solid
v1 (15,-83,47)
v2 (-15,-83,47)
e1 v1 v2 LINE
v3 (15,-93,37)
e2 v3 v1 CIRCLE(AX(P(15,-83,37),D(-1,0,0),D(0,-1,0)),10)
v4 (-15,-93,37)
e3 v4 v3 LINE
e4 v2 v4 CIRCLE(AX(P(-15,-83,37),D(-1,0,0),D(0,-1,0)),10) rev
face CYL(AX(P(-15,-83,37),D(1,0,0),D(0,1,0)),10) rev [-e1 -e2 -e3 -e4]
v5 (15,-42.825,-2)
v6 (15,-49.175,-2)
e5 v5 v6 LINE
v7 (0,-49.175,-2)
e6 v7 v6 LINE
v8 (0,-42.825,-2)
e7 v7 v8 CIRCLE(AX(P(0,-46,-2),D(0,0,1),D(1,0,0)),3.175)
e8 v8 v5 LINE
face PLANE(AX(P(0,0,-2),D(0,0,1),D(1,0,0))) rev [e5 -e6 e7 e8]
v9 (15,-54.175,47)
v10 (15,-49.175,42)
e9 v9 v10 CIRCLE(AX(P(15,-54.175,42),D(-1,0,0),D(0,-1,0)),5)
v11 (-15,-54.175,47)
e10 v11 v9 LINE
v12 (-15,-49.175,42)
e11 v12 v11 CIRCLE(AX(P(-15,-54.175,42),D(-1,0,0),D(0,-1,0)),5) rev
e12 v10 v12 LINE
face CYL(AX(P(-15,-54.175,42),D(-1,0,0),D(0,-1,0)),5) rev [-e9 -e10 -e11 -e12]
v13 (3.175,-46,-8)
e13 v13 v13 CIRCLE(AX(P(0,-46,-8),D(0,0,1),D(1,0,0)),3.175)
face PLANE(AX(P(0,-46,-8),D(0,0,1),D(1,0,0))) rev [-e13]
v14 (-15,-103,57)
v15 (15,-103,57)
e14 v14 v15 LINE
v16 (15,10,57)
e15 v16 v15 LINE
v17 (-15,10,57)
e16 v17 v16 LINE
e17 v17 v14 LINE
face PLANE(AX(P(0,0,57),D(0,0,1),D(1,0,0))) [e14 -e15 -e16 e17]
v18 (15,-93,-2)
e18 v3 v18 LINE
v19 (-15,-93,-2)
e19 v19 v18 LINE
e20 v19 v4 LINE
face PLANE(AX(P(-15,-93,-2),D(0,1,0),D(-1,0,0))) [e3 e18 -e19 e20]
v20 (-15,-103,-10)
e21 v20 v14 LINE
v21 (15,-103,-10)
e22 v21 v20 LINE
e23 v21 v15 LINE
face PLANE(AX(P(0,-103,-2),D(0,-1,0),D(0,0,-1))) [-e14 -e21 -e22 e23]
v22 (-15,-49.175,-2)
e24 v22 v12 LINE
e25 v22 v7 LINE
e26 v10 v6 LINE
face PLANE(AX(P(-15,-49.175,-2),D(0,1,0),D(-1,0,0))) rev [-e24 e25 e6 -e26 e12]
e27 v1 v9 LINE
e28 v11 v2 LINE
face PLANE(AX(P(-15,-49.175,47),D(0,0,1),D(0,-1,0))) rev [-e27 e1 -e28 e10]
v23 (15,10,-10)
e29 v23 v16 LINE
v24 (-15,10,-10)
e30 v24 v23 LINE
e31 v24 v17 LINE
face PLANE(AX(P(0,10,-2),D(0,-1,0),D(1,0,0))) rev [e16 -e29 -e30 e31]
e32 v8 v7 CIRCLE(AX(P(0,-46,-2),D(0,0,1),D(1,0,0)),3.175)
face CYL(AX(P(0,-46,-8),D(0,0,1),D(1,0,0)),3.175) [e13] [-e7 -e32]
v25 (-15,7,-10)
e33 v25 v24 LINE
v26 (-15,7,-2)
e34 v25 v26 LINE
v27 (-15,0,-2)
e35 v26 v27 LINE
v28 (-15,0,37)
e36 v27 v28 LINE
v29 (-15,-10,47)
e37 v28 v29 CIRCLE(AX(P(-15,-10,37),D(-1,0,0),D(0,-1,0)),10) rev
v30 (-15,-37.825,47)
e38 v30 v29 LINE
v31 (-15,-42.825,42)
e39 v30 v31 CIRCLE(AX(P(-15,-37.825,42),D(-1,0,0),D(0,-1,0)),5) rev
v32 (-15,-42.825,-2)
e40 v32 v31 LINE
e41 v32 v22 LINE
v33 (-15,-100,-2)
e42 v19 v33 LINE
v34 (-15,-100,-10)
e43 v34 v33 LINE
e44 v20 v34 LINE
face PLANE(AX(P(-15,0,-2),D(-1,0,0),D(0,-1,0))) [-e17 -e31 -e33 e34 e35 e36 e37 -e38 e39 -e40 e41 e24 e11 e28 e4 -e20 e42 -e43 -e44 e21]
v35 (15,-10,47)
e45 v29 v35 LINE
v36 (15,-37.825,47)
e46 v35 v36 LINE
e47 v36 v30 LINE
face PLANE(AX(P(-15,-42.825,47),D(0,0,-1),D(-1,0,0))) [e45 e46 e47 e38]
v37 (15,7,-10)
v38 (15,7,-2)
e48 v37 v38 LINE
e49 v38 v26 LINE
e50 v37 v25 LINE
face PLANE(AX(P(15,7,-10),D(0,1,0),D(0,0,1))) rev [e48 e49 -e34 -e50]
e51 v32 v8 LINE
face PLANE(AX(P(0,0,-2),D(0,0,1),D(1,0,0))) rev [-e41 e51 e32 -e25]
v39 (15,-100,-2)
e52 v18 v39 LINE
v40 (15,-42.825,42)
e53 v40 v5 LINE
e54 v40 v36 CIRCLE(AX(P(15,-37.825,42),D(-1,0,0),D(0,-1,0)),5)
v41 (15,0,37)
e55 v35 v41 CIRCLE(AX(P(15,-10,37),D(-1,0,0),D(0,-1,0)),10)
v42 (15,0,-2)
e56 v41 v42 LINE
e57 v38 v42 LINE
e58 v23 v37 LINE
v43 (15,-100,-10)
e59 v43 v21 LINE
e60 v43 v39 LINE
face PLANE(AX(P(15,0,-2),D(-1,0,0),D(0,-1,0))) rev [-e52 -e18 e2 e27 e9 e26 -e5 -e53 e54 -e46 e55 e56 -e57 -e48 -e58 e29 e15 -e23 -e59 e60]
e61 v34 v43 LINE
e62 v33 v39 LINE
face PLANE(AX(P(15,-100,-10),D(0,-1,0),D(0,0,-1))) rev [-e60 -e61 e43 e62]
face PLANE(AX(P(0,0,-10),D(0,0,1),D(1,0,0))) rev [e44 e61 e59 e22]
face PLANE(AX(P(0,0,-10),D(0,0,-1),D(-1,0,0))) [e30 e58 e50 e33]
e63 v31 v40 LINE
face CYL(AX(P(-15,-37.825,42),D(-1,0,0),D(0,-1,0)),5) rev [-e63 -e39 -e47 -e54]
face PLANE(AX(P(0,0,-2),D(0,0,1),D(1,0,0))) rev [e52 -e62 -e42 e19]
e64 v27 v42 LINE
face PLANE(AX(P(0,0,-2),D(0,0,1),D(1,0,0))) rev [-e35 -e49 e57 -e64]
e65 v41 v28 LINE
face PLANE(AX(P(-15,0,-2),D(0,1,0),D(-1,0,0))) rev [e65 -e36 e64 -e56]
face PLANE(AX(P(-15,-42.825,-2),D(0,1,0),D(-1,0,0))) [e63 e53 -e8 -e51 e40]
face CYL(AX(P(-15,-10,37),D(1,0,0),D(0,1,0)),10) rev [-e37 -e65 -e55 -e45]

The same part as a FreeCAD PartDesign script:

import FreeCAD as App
import Part
import Sketcher
from FreeCAD import Vector


def edges_at(feature, points):
    """Names of the edges that pass closest to the given points."""
    edges = feature.Shape.Edges
    near = lambda p: min(range(len(edges)), key=lambda i: edges[i].distToShape(Part.Vertex(*p))[0])
    return sorted({f"Edge{near(p) + 1}" for p in points})


def add_polygon(sketch, points):
    """Adds a closed chain of lines whose ends are joined by coincident constraints."""
    first, n = sketch.GeometryCount, len(points)
    for a, b in zip(points, points[1:] + points[:1]):
        sketch.addGeometry(Part.LineSegment(App.Vector(*a, 0), App.Vector(*b, 0)), False)
    for i in range(n):
        sketch.addConstraint(Sketcher.Constraint("Coincident", first + i, 2, first + (i + 1) % n, 1))

doc = App.newDocument("Part")
body = doc.addObject("PartDesign::Body", "Body")

# Sketch on XY plane
sketch1 = doc.addObject("Sketcher::SketchObject", "Sketch")
body.addObject(sketch1)
sketch1.AttachmentSupport = (doc.XY_Plane, [""])
sketch1.MapMode = "FlatFace"
add_polygon(sketch1, [(-15, 10), (-15, -103), (15, -103), (15, 10)])  # lines 0-3
sketch1.addConstraint(Sketcher.Constraint("Vertical", 0))
sketch1.addConstraint(Sketcher.Constraint("Horizontal", 1))
sketch1.addConstraint(Sketcher.Constraint("Vertical", 2))
sketch1.addConstraint(Sketcher.Constraint("Horizontal", 3))
sketch1.addConstraint(Sketcher.Constraint("DistanceX", 1, 1, 1, 2, 30.0))
sketch1.addConstraint(Sketcher.Constraint("DistanceY", 0, 2, 0, 1, 113.0))
sketch1.addConstraint(Sketcher.Constraint("DistanceX", 0, 2, -1, 1, 15.0))
sketch1.addConstraint(Sketcher.Constraint("DistanceY", 0, 2, -1, 1, 103.0))
pad1 = doc.addObject("PartDesign::Pad", "Pad")
body.addObject(pad1)
pad1.Profile = sketch1
pad1.Type = "TwoLengths"
pad1.Length = 57
pad1.Length2 = 2

# Sketch on XY plane
sketch2 = doc.addObject("Sketcher::SketchObject", "Sketch001")
body.addObject(sketch2)
sketch2.AttachmentSupport = (doc.XY_Plane, [""])
sketch2.MapMode = "FlatFace"
sketch2.addGeometry(Part.Circle(Vector(0, -46, 0), Vector(0, 0, 1), 3.175), False)
sketch2.addConstraint(Sketcher.Constraint("PointOnObject", 0, 3, -2))
sketch2.addConstraint(Sketcher.Constraint("Diameter", 0, 6.35))
sketch2.addConstraint(Sketcher.Constraint("DistanceY", 0, 3, -1, 1, 46.0))
pad2 = doc.addObject("PartDesign::Pad", "Pad001")
body.addObject(pad2)
pad2.Profile = sketch2
pad2.Length = 8
pad2.Reversed = True

# Sketch on YZ plane
sketch3 = doc.addObject("Sketcher::SketchObject", "Sketch002")
body.addObject(sketch3)
sketch3.AttachmentSupport = (doc.YZ_Plane, [""])
sketch3.MapMode = "FlatFace"
sketch3.AttachmentOffset = App.Placement(Vector(0, 0, 15), App.Rotation())
add_polygon(sketch3, [(0, 47), (-42.825, 47), (-42.825, -2), (0, -2)])  # lines 0-3
add_polygon(sketch3, [(-49.175, 47), (-93, 47), (-93, -2), (-49.175, -2)])  # lines 4-7
sketch3.addConstraint(Sketcher.Constraint("Horizontal", 0))
sketch3.addConstraint(Sketcher.Constraint("Vertical", 1))
sketch3.addConstraint(Sketcher.Constraint("Horizontal", 2))
sketch3.addConstraint(Sketcher.Constraint("Vertical", 3))
sketch3.addConstraint(Sketcher.Constraint("Horizontal", 4))
sketch3.addConstraint(Sketcher.Constraint("Vertical", 5))
sketch3.addConstraint(Sketcher.Constraint("Horizontal", 6))
sketch3.addConstraint(Sketcher.Constraint("Vertical", 7))
sketch3.addConstraint(Sketcher.Constraint("PointOnObject", 2, 2, -2))
sketch3.addConstraint(Sketcher.Constraint("Horizontal", 3, 2, 4, 2))
sketch3.addConstraint(Sketcher.Constraint("Horizontal", 2, 2, 5, 2))
sketch3.addConstraint(Sketcher.Constraint("DistanceY", 1, 2, 1, 1, 49.0))
sketch3.addConstraint(Sketcher.Constraint("DistanceY", -1, 1, 0, 2, 47.0))
sketch3.addConstraint(Sketcher.Constraint("DistanceX", 4, 2, -1, 1, 93.0))
sketch3.addConstraint(Sketcher.Constraint("DistanceX", 0, 2, 0, 1, 42.825))
sketch3.addConstraint(Sketcher.Constraint("DistanceX", 4, 2, 4, 1, 43.825))
pocket1 = doc.addObject("PartDesign::Pocket", "Pocket")
body.addObject(pocket1)
pocket1.Profile = sketch3
pocket1.Type = "ThroughAll"
pocket1.Midplane = True

# Sketch on XY plane
sketch4 = doc.addObject("Sketcher::SketchObject", "Sketch003")
body.addObject(sketch4)
sketch4.AttachmentSupport = (doc.XY_Plane, [""])
sketch4.MapMode = "FlatFace"
sketch4.AttachmentOffset = App.Placement(Vector(0, 0, -2), App.Rotation())
add_polygon(sketch4, [(15, 10), (15, 7), (-15, 7), (-15, 10)])  # lines 0-3
add_polygon(sketch4, [(15, -100), (15, -103), (-15, -103), (-15, -100)])  # lines 4-7
sketch4.addConstraint(Sketcher.Constraint("Vertical", 0))
sketch4.addConstraint(Sketcher.Constraint("Horizontal", 1))
sketch4.addConstraint(Sketcher.Constraint("Vertical", 2))
sketch4.addConstraint(Sketcher.Constraint("Horizontal", 3))
sketch4.addConstraint(Sketcher.Constraint("Vertical", 4))
sketch4.addConstraint(Sketcher.Constraint("Horizontal", 5))
sketch4.addConstraint(Sketcher.Constraint("Vertical", 6))
sketch4.addConstraint(Sketcher.Constraint("Horizontal", 7))
sketch4.addConstraint(Sketcher.Constraint("Vertical", 3, 2, 4, 2))
sketch4.addConstraint(Sketcher.Constraint("Vertical", 2, 2, 5, 2))
sketch4.addConstraint(Sketcher.Constraint("Equal", 2, 4))
sketch4.addConstraint(Sketcher.Constraint("DistanceX", 1, 2, 1, 1, 30.0))
sketch4.addConstraint(Sketcher.Constraint("DistanceY", 0, 2, 0, 1, 3.0))
sketch4.addConstraint(Sketcher.Constraint("DistanceX", -1, 1, 0, 2, 15.0))
sketch4.addConstraint(Sketcher.Constraint("DistanceY", -1, 1, 0, 2, 7.0))
sketch4.addConstraint(Sketcher.Constraint("DistanceY", 4, 2, -1, 1, 103.0))
pad3 = doc.addObject("PartDesign::Pad", "Pad002")
body.addObject(pad3)
pad3.Profile = sketch4
pad3.Length = 8
pad3.Reversed = True
doc.recompute()

fillet = doc.addObject("PartDesign::Fillet", "Fillet")
body.addObject(fillet)
fillet.Base = (pad3, edges_at(pad3, [(0, 0, 47)]))
fillet.Radius = 10
doc.recompute()

fillet2 = doc.addObject("PartDesign::Fillet", "Fillet001")
body.addObject(fillet2)
fillet2.Base = (fillet, edges_at(fillet, [(0, -93, 47)]))
fillet2.Radius = 10
doc.recompute()

fillet3 = doc.addObject("PartDesign::Fillet", "Fillet002")
body.addObject(fillet3)
fillet3.Base = (fillet2, edges_at(fillet2, [(0, -42.825, 47)]))
fillet3.Radius = 5
doc.recompute()

fillet4 = doc.addObject("PartDesign::Fillet", "Fillet003")
body.addObject(fillet4)
fillet4.Base = (fillet3, edges_at(fillet3, [(0, -49.175, 47)]))
fillet4.Radius = 5

doc.recompute()
